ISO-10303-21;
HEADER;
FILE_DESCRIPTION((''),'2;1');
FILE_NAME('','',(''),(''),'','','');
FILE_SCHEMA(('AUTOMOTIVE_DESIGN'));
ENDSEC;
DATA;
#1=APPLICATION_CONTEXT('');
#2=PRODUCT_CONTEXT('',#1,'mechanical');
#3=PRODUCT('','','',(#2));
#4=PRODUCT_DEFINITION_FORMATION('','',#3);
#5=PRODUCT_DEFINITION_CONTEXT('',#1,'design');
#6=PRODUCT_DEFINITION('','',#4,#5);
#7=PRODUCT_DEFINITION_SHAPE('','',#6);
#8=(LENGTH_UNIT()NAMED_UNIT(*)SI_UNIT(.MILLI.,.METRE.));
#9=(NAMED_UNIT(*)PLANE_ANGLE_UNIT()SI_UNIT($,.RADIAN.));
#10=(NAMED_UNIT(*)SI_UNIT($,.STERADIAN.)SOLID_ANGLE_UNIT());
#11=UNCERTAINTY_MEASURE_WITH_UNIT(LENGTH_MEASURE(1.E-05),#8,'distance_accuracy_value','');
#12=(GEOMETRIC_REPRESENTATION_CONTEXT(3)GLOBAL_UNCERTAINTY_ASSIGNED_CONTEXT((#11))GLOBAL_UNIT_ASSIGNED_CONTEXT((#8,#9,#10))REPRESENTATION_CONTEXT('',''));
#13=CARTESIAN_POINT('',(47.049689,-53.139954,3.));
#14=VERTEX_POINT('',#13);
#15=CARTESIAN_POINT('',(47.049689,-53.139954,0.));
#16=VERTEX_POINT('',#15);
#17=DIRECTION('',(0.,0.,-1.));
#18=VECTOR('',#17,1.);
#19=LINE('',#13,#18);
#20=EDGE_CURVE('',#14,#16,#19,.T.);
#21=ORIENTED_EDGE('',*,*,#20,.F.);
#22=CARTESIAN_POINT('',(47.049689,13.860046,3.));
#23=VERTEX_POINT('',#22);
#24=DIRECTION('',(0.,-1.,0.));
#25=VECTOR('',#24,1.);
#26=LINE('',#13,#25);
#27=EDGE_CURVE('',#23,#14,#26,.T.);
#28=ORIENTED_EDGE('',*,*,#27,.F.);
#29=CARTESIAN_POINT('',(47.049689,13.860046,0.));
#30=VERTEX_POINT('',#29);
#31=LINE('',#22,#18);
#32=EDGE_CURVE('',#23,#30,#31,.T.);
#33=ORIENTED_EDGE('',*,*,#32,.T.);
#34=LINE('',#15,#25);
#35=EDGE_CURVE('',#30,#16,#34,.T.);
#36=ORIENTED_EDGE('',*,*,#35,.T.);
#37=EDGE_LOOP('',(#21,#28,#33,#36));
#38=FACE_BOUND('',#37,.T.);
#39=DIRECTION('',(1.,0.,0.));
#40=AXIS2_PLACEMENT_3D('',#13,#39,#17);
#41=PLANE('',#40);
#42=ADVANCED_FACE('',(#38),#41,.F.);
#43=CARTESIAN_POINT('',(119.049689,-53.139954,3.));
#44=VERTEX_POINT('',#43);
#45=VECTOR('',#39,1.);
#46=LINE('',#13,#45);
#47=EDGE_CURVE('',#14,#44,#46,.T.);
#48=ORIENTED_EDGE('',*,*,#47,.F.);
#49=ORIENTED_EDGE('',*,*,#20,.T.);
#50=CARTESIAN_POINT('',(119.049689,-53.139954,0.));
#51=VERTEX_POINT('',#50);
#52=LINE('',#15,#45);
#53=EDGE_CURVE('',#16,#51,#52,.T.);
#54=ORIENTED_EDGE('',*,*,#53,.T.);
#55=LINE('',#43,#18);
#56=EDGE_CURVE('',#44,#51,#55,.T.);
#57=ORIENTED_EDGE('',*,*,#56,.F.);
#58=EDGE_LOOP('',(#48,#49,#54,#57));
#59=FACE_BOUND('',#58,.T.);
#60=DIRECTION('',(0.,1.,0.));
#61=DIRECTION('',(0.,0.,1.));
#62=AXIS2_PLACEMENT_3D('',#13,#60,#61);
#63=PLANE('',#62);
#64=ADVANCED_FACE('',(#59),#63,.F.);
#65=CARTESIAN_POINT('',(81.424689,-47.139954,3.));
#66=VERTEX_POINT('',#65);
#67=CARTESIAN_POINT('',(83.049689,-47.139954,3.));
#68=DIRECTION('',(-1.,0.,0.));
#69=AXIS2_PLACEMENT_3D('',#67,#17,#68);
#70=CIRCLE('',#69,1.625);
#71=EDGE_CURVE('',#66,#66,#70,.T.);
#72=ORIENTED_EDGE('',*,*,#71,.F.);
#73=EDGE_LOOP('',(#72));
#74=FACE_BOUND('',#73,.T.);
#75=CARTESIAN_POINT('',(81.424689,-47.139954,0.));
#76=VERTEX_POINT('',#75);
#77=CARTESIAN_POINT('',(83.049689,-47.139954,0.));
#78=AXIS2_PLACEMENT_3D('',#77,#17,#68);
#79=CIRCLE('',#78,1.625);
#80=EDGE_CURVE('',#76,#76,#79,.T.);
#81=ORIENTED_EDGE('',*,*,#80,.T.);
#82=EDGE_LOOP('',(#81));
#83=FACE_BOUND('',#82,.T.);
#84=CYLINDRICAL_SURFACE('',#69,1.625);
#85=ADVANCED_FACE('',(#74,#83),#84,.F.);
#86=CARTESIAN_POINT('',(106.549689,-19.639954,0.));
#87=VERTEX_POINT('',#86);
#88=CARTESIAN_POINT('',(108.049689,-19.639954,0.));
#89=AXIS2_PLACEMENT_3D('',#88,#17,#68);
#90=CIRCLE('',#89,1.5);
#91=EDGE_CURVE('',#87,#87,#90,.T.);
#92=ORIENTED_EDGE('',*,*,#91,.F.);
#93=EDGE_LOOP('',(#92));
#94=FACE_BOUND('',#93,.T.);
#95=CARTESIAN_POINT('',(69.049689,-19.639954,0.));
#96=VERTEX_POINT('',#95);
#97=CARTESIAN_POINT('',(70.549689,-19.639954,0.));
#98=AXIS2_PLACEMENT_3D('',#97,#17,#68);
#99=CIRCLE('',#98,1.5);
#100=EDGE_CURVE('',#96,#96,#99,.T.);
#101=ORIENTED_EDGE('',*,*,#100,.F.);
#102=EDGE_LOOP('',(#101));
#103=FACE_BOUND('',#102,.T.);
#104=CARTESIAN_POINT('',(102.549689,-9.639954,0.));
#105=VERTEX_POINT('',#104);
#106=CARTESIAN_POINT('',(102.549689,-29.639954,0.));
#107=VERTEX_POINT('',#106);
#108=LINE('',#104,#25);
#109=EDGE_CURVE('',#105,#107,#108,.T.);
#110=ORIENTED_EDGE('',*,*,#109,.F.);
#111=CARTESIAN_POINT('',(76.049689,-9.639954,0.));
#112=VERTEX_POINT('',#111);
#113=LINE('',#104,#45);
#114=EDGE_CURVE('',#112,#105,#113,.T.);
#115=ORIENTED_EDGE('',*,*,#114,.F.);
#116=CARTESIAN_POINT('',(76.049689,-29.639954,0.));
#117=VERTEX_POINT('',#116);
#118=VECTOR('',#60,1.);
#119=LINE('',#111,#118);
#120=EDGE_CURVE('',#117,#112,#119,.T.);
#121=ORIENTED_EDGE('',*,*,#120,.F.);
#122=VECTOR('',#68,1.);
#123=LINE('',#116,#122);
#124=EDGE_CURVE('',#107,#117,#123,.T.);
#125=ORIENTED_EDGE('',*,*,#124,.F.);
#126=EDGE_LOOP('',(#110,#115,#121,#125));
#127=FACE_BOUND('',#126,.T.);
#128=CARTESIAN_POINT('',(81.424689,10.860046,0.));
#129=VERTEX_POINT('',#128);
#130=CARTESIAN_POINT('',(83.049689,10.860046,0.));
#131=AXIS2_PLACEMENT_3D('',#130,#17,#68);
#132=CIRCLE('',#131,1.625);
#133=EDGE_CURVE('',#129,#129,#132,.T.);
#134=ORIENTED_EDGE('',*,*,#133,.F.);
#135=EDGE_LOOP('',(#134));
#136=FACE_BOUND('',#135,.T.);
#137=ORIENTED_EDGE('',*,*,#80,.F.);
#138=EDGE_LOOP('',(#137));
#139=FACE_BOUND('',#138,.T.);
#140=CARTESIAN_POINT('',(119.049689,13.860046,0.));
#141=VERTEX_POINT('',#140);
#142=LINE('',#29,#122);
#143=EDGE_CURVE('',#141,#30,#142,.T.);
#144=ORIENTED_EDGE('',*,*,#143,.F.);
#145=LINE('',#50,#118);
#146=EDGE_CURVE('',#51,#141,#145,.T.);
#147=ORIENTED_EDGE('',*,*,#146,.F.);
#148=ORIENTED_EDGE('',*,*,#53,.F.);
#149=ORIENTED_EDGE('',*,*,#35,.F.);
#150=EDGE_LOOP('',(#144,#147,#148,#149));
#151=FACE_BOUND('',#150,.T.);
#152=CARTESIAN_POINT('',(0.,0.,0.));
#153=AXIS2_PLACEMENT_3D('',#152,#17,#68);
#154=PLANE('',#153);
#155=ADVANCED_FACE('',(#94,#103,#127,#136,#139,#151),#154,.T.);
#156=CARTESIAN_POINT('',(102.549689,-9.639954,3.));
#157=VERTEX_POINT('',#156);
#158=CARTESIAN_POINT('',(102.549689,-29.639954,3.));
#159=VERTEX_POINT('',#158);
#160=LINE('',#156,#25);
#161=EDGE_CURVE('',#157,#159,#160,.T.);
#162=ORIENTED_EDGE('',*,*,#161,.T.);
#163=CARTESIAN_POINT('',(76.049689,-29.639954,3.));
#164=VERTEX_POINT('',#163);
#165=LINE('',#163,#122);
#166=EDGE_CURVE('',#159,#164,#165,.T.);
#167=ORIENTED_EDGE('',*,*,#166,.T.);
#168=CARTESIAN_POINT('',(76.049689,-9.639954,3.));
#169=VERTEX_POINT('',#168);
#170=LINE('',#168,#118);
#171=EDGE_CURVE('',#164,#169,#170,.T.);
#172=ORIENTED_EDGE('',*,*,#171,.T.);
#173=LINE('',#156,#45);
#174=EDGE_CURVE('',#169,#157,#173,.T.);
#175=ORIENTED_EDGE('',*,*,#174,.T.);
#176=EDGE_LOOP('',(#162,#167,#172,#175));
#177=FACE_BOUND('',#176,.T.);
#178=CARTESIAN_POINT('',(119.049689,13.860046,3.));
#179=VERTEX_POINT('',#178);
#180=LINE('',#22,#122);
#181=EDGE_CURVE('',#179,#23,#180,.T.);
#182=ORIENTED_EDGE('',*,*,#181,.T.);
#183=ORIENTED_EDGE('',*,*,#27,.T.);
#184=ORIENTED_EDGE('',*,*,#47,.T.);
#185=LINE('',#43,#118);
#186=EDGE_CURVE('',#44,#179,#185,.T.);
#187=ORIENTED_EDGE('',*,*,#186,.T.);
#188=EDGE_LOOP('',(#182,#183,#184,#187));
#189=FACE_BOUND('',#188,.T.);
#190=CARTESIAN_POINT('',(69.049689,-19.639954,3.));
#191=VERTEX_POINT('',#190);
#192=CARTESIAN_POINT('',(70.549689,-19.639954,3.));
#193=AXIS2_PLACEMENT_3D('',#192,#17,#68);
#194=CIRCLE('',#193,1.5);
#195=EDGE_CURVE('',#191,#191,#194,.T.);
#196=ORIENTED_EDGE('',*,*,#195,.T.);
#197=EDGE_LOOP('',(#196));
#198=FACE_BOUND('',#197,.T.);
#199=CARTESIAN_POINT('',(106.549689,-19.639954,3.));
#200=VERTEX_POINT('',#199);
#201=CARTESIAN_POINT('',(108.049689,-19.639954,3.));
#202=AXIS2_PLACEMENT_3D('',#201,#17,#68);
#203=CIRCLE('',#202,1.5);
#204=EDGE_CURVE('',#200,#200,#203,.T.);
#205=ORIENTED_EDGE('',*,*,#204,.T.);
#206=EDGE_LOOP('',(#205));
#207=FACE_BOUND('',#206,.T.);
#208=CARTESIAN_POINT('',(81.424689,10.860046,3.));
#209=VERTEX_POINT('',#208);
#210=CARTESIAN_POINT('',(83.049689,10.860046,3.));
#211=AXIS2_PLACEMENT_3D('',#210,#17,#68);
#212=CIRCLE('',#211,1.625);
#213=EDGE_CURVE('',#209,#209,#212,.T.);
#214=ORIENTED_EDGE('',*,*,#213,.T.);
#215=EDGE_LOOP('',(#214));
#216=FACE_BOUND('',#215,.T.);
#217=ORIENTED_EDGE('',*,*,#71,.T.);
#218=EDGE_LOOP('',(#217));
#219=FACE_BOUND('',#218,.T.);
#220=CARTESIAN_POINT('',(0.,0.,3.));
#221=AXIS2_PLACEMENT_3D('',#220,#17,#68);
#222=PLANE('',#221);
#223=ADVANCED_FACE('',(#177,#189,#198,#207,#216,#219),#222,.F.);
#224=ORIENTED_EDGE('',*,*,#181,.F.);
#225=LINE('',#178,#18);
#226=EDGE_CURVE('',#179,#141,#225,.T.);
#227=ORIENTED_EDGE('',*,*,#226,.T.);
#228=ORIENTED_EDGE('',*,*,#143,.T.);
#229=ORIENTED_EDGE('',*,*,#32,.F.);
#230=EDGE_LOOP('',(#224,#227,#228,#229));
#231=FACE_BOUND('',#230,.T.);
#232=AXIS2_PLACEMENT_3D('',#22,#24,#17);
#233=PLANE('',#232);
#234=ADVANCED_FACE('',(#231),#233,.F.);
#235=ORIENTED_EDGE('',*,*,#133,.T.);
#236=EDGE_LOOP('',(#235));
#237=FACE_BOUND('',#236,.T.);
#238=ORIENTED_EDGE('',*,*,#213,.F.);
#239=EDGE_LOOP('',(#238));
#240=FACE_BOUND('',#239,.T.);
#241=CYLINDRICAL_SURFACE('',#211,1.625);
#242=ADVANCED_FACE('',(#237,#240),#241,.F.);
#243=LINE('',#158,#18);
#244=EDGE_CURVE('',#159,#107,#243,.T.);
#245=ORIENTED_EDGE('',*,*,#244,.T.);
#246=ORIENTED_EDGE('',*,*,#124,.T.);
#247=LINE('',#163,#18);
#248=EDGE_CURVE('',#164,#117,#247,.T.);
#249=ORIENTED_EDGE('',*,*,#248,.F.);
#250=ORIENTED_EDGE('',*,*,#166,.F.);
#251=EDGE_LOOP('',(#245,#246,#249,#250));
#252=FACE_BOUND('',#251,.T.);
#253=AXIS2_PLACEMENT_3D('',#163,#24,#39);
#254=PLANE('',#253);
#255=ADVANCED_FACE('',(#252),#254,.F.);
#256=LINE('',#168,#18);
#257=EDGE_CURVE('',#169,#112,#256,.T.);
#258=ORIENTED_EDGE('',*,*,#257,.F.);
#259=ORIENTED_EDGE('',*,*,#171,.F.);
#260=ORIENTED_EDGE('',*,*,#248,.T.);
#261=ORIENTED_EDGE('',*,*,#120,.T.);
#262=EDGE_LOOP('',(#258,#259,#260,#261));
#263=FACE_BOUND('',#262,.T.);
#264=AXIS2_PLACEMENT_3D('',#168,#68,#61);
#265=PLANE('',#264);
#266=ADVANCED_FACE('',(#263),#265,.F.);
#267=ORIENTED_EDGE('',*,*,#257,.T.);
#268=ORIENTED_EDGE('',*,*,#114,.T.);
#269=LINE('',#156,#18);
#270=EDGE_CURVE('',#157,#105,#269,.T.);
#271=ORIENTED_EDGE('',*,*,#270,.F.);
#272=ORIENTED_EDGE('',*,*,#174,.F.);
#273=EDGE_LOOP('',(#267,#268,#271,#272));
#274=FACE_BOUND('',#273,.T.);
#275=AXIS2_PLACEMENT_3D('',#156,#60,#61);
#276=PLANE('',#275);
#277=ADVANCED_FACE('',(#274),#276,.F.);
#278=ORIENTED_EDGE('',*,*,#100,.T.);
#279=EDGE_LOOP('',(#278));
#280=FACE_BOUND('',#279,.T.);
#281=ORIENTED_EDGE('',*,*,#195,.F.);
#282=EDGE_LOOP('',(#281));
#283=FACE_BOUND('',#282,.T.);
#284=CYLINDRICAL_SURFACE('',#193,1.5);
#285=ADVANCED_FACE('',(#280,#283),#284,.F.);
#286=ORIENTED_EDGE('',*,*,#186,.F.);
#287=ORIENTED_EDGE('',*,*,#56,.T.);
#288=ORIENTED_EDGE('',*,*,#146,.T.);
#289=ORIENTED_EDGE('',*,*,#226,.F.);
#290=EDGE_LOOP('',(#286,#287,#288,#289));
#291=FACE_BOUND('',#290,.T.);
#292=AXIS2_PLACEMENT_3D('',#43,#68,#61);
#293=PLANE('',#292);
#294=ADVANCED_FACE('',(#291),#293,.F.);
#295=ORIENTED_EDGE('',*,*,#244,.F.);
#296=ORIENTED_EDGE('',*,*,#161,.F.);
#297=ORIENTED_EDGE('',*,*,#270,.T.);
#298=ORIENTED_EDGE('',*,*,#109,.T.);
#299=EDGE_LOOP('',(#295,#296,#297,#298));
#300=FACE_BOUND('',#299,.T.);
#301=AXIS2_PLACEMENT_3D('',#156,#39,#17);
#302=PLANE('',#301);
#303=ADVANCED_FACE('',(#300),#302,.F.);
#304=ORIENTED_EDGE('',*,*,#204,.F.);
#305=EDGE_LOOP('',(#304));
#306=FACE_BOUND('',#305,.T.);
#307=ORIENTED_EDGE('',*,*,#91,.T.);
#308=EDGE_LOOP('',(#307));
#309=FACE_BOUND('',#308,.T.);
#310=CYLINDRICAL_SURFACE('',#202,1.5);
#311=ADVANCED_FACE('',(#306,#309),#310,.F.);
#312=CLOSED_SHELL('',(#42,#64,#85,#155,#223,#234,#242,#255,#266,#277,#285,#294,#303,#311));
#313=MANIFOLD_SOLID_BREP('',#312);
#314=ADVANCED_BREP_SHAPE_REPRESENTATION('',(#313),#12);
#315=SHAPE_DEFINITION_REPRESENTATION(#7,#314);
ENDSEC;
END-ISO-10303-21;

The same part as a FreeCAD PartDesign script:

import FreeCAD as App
import Part
import Sketcher

V = App.Vector
Q = App.Units.Quantity

doc = App.newDocument("Part")
params = doc.addObject("Spreadsheet::Sheet", "Params")
for row, (alias, value) in enumerate([
    ("sketch1_width", "72 mm"),
    ("sketch1_height", "67 mm"),
    ("pad1_length", "3 mm"),
    ("sketch2_diameter", "3 mm"),
    ("sketch2_diameter2", "3.25 mm"),
    ("sketch2_height", "20 mm"),
    ("sketch2_width", "26.5 mm"),
    ("pocket1_length", "3 mm"),
], start=1):
    params.set(f"A{row}", alias)
    params.set(f"B{row}", "=" + value)
    params.setAlias(f"B{row}", alias)

body = doc.addObject("PartDesign::Body", "Body")

sketch1 = body.newObject("Sketcher::SketchObject", "Sketch")
sketch1.AttachmentSupport = (doc.getObject("XY_Plane"), [""])
sketch1.MapMode = "FlatFace"
sketch1.addGeometry(Part.LineSegment(V(47, 14, 0), V(47, -53, 0)), False)
sketch1.addGeometry(Part.LineSegment(V(47, -53, 0), V(119, -53, 0)), False)
sketch1.addGeometry(Part.LineSegment(V(119, -53, 0), V(119, 14, 0)), False)
sketch1.addGeometry(Part.LineSegment(V(119, 14, 0), V(47, 14, 0)), False)
sketch1.addConstraint(Sketcher.Constraint("Coincident", 0, 2, 1, 1))
sketch1.addConstraint(Sketcher.Constraint("Coincident", 1, 2, 2, 1))
sketch1.addConstraint(Sketcher.Constraint("Coincident", 2, 2, 3, 1))
sketch1.addConstraint(Sketcher.Constraint("Coincident", 3, 2, 0, 1))
sketch1.addConstraint(Sketcher.Constraint("Vertical", 0))
sketch1.addConstraint(Sketcher.Constraint("Horizontal", 1))
sketch1.addConstraint(Sketcher.Constraint("Vertical", 2))
sketch1.addConstraint(Sketcher.Constraint("Horizontal", 3))
sketch1.addConstraint(Sketcher.Constraint("DistanceX", 1, 1, 1, 2, Q("72 mm")))
sketch1.addConstraint(Sketcher.Constraint("DistanceY", 0, 2, 0, 1, Q("67 mm")))
sketch1.addConstraint(Sketcher.Constraint("DistanceX", -1, 1, 0, 2, Q("47.049689 mm")))
sketch1.addConstraint(Sketcher.Constraint("DistanceY", 0, 2, -1, 1, Q("53.139954 mm")))
sketch1.setExpression("Constraints[8]", "Params.sketch1_width")
sketch1.setExpression("Constraints[9]", "Params.sketch1_height")
pad1 = body.newObject("PartDesign::Pad", "Pad")
pad1.Profile = sketch1
pad1.setExpression("Length", "Params.pad1_length")

sketch2 = body.newObject("Sketcher::SketchObject", "Sketch001")
sketch2.AttachmentSupport = (doc.getObject("XY_Plane"), [""])
sketch2.MapMode = "FlatFace"
sketch2.addGeometry(Part.Circle(V(83, -47.1, 0), V(0, 0, 1), 1.6), False)
sketch2.addGeometry(Part.Circle(V(83, 10.9, 0), V(0, 0, 1), 1.6), False)
sketch2.addGeometry(Part.Circle(V(108, -19.6, 0), V(0, 0, 1), 1.5), False)
sketch2.addGeometry(Part.Circle(V(70.5, -19.6, 0), V(0, 0, 1), 1.5), False)
sketch2.addGeometry(Part.LineSegment(V(102.5, -9.6, 0), V(102.5, -29.6, 0)), False)
sketch2.addGeometry(Part.LineSegment(V(102.5, -29.6, 0), V(76, -29.6, 0)), False)
sketch2.addGeometry(Part.LineSegment(V(76, -29.6, 0), V(76, -9.6, 0)), False)
sketch2.addGeometry(Part.LineSegment(V(76, -9.6, 0), V(102.5, -9.6, 0)), False)
sketch2.addConstraint(Sketcher.Constraint("Coincident", 4, 2, 5, 1))
sketch2.addConstraint(Sketcher.Constraint("Coincident", 5, 2, 6, 1))
sketch2.addConstraint(Sketcher.Constraint("Coincident", 6, 2, 7, 1))
sketch2.addConstraint(Sketcher.Constraint("Coincident", 7, 2, 4, 1))
sketch2.addConstraint(Sketcher.Constraint("Vertical", 4))
sketch2.addConstraint(Sketcher.Constraint("Horizontal", 5))
sketch2.addConstraint(Sketcher.Constraint("Vertical", 6))
sketch2.addConstraint(Sketcher.Constraint("Horizontal", 7))
sketch2.addConstraint(Sketcher.Constraint("Equal", 0, 1))
sketch2.addConstraint(Sketcher.Constraint("Equal", 2, 3))
sketch2.addConstraint(Sketcher.Constraint("Horizontal", 2, 3, 3, 3))
sketch2.addConstraint(Sketcher.Constraint("Vertical", 0, 3, 1, 3))
sketch2.addConstraint(Sketcher.Constraint("Diameter", 2, Q("3 mm")))
sketch2.addConstraint(Sketcher.Constraint("Diameter", 0, Q("3.25 mm")))
sketch2.addConstraint(Sketcher.Constraint("DistanceY", 4, 2, 4, 1, Q("20 mm")))
sketch2.addConstraint(Sketcher.Constraint("DistanceX", 5, 2, 5, 1, Q("26.5 mm")))
sketch2.addConstraint(Sketcher.Constraint("DistanceY", 0, 3, 1, 3, Q("58 mm")))
sketch2.addConstraint(Sketcher.Constraint("DistanceX", 0, 3, 2, 3, Q("25 mm")))
sketch2.addConstraint(Sketcher.Constraint("DistanceY", 4, 2, 2, 3, Q("10 mm")))
sketch2.addConstraint(Sketcher.Constraint("DistanceX", 3, 3, 4, 2, Q("32 mm")))
sketch2.addConstraint(Sketcher.Constraint("DistanceX", 5, 2, 0, 3, Q("7 mm")))
sketch2.addConstraint(Sketcher.Constraint("DistanceY", 0, 3, 2, 3, Q("27.5 mm")))
sketch2.addConstraint(Sketcher.Constraint("DistanceX", -1, 1, 0, 3, Q("83.049689 mm")))
sketch2.addConstraint(Sketcher.Constraint("DistanceY", 0, 3, -1, 1, Q("47.139954 mm")))
sketch2.setExpression("Constraints[12]", "Params.sketch2_diameter")
sketch2.setExpression("Constraints[13]", "Params.sketch2_diameter2")
sketch2.setExpression("Constraints[14]", "Params.sketch2_height")
sketch2.setExpression("Constraints[15]", "Params.sketch2_width")
pocket1 = body.newObject("PartDesign::Pocket", "Pocket")
pocket1.Profile = sketch2
pocket1.setExpression("Length", "Params.pocket1_length")
pocket1.Reversed = True

doc.recompute()
